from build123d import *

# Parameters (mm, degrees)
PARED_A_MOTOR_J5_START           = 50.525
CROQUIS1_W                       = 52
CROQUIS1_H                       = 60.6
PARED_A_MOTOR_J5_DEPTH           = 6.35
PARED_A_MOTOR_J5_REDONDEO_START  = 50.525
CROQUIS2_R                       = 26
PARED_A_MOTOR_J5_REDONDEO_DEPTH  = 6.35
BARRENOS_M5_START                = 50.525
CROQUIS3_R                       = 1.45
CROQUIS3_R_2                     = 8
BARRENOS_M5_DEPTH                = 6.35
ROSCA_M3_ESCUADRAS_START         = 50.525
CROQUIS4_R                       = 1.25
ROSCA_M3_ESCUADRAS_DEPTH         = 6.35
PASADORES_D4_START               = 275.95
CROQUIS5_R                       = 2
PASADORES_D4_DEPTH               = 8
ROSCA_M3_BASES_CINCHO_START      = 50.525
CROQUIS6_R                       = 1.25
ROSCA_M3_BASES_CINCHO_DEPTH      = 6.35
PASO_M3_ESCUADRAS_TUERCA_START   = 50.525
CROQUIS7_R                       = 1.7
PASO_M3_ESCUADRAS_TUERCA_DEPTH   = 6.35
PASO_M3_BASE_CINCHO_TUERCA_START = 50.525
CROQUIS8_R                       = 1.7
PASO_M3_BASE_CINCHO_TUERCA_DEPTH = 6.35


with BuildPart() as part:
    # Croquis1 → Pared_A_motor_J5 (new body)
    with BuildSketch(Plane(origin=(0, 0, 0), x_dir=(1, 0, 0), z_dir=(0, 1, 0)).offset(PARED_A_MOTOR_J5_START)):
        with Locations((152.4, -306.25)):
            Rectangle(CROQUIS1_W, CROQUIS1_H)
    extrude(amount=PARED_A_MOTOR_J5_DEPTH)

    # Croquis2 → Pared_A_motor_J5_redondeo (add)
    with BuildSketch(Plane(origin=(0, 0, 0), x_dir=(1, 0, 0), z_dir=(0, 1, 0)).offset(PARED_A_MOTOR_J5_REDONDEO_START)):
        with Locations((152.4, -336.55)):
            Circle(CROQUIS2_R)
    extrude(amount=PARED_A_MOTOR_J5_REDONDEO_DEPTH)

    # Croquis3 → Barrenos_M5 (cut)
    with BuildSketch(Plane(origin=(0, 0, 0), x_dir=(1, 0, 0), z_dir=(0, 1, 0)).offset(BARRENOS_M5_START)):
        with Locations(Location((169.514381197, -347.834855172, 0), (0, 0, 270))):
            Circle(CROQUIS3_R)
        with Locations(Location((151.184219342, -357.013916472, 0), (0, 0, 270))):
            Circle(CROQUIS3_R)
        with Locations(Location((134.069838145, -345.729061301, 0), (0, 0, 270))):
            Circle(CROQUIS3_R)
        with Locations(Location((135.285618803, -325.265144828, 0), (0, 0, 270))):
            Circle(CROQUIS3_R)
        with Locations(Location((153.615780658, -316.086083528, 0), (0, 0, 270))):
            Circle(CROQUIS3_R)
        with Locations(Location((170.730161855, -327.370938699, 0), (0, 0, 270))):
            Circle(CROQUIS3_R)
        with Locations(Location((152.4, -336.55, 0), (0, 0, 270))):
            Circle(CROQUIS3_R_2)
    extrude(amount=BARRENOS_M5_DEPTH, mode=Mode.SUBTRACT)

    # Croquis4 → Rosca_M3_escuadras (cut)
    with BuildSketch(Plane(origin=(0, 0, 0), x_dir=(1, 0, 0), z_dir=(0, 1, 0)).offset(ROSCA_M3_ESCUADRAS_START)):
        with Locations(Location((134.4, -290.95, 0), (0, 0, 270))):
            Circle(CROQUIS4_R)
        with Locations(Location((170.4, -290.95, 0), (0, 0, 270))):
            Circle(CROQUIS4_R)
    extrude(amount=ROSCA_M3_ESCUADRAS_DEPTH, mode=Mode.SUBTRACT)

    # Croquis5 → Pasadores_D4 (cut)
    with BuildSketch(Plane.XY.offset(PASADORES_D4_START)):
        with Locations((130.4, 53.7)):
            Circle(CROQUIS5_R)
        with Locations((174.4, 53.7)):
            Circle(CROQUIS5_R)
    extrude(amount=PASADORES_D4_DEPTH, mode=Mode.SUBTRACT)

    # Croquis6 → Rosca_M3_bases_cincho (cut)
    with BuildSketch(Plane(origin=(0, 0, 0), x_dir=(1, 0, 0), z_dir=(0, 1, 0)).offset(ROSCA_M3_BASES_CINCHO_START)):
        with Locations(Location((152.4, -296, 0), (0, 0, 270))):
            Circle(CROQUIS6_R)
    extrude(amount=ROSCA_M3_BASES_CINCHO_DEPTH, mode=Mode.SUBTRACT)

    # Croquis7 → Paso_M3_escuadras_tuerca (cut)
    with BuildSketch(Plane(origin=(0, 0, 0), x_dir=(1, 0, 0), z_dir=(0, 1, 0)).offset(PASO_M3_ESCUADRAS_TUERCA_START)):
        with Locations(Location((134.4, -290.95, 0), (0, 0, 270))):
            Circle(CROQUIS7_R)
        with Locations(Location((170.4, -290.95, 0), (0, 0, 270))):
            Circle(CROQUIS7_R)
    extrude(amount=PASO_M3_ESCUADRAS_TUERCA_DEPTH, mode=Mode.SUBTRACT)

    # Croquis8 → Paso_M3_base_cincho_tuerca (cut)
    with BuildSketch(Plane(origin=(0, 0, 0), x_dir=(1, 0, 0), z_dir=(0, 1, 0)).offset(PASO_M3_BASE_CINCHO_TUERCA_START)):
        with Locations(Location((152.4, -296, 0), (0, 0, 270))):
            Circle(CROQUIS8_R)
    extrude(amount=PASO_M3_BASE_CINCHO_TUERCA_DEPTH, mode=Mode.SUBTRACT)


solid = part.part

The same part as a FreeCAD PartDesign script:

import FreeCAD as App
import Part
import Sketcher

doc = App.newDocument("Part")
body = doc.addObject("PartDesign::Body", "Body")

sketch1 = doc.addObject("Sketcher::SketchObject", "Sketch")
body.addObject(sketch1)
sketch1.AttachmentSupport = (doc.XZ_Plane, [""])
sketch1.MapMode = "FlatFace"
sketch1.AttachmentOffset = App.Placement(App.Vector(0, 0, -50.525), App.Rotation())
sketch1.addGeometry(Part.LineSegment(App.Vector(126, 276, 0), App.Vector(126, 337, 0)), False)
sketch1.addGeometry(Part.LineSegment(App.Vector(126, 337, 0), App.Vector(178, 337, 0)), False)
sketch1.addGeometry(Part.LineSegment(App.Vector(178, 337, 0), App.Vector(178, 276, 0)), False)
sketch1.addGeometry(Part.LineSegment(App.Vector(178, 276, 0), App.Vector(126, 276, 0)), False)
sketch1.addConstraint(Sketcher.Constraint("Coincident", 0, 2, 1, 1))
sketch1.addConstraint(Sketcher.Constraint("Coincident", 1, 2, 2, 1))
sketch1.addConstraint(Sketcher.Constraint("Coincident", 2, 2, 3, 1))
sketch1.addConstraint(Sketcher.Constraint("Coincident", 3, 2, 0, 1))
sketch1.addConstraint(Sketcher.Constraint("Vertical", 0))
sketch1.addConstraint(Sketcher.Constraint("Horizontal", 1))
sketch1.addConstraint(Sketcher.Constraint("Vertical", 2))
sketch1.addConstraint(Sketcher.Constraint("Horizontal", 3))
sketch1.addConstraint(Sketcher.Constraint("DistanceX", 1, 1, 1, 2, 52.0))
sketch1.addConstraint(Sketcher.Constraint("DistanceY", 0, 1, 0, 2, 60.6))
sketch1.addConstraint(Sketcher.Constraint("DistanceX", -1, 1, 0, 2, 126.4))
sketch1.addConstraint(Sketcher.Constraint("DistanceY", -1, 1, 0, 2, 336.55))
pad1 = doc.addObject("PartDesign::Pad", "Pad")
body.addObject(pad1)
pad1.Profile = sketch1
pad1.Length = 6.35
pad1.Reversed = True

sketch2 = doc.addObject("Sketcher::SketchObject", "Sketch001")
body.addObject(sketch2)
sketch2.AttachmentSupport = (doc.XZ_Plane, [""])
sketch2.MapMode = "FlatFace"
sketch2.AttachmentOffset = App.Placement(App.Vector(0, 0, -50.525), App.Rotation())
sketch2.addGeometry(Part.Circle(App.Vector(152, 337, 0), App.Vector(0, 0, 1), 26), False)
sketch2.addConstraint(Sketcher.Constraint("Diameter", 0, 52.0))
sketch2.addConstraint(Sketcher.Constraint("DistanceX", -1, 1, 0, 3, 152.4))
sketch2.addConstraint(Sketcher.Constraint("DistanceY", -1, 1, 0, 3, 336.55))
pad2 = doc.addObject("PartDesign::Pad", "Pad001")
body.addObject(pad2)
pad2.Profile = sketch2
pad2.Length = 6.35
pad2.Reversed = True

sketch3 = doc.addObject("Sketcher::SketchObject", "Sketch002")
body.addObject(sketch3)
sketch3.AttachmentSupport = (doc.XZ_Plane, [""])
sketch3.MapMode = "FlatFace"
sketch3.AttachmentOffset = App.Placement(App.Vector(0, 0, -50.525), App.Rotation())
sketch3.addGeometry(Part.Circle(App.Vector(169.5, 347.8, 0), App.Vector(0, 0, 1), 1.4), False)
sketch3.addGeometry(Part.Circle(App.Vector(151.2, 357, 0), App.Vector(0, 0, 1), 1.4), False)
sketch3.addGeometry(Part.Circle(App.Vector(134.1, 345.7, 0), App.Vector(0, 0, 1), 1.4), False)
sketch3.addGeometry(Part.Circle(App.Vector(135.3, 325.3, 0), App.Vector(0, 0, 1), 1.4), False)
sketch3.addGeometry(Part.Circle(App.Vector(153.6, 316.1, 0), App.Vector(0, 0, 1), 1.4), False)
sketch3.addGeometry(Part.Circle(App.Vector(170.7, 327.4, 0), App.Vector(0, 0, 1), 1.4), False)
sketch3.addGeometry(Part.Circle(App.Vector(152.4, 336.6, 0), App.Vector(0, 0, 1), 8), False)
sketch3.addConstraint(Sketcher.Constraint("Equal", 0, 1))
sketch3.addConstraint(Sketcher.Constraint("Equal", 1, 2))
sketch3.addConstraint(Sketcher.Constraint("Equal", 2, 3))
sketch3.addConstraint(Sketcher.Constraint("Equal", 3, 4))
sketch3.addConstraint(Sketcher.Constraint("Equal", 4, 5))
sketch3.addConstraint(Sketcher.Constraint("Diameter", 6, 16.0))
sketch3.addConstraint(Sketcher.Constraint("Diameter", 0, 2.9))
sketch3.addConstraint(Sketcher.Constraint("DistanceX", -1, 1, 6, 3, 152.4))
sketch3.addConstraint(Sketcher.Constraint("DistanceY", -1, 1, 6, 3, 336.55))
sketch3.addConstraint(Sketcher.Constraint("DistanceX", 3, 3, 1, 3, 15.898601))
sketch3.addConstraint(Sketcher.Constraint("DistanceX", 4, 3, 0, 3, 15.898601))
sketch3.addConstraint(Sketcher.Constraint("DistanceX", -1, 1, 0, 3, 169.514381))
sketch3.addConstraint(Sketcher.Constraint("DistanceX", -1, 1, 1, 3, 151.184219))
sketch3.addConstraint(Sketcher.Constraint("DistanceX", -1, 1, 2, 3, 134.069838))
sketch3.addConstraint(Sketcher.Constraint("DistanceY", -1, 1, 2, 3, 345.729061))
sketch3.addConstraint(Sketcher.Constraint("DistanceX", -1, 1, 5, 3, 170.730162))
sketch3.addConstraint(Sketcher.Constraint("DistanceY", -1, 1, 5, 3, 327.370939))
sketch3.addConstraint(Sketcher.Constraint("DistanceY", 0, 3, 1, 3, 9.179061))
sketch3.addConstraint(Sketcher.Constraint("DistanceY", 3, 3, 1, 3, 31.748772))
sketch3.addConstraint(Sketcher.Constraint("DistanceY", 4, 3, 3, 3, 9.179061))
sketch3.addConstraint(Sketcher.Constraint("DistanceY", -1, 1, 0, 3, 347.834855))
pocket1 = doc.addObject("PartDesign::Pocket", "Pocket")
body.addObject(pocket1)
pocket1.Profile = sketch3
pocket1.Length = 6.35

sketch4 = doc.addObject("Sketcher::SketchObject", "Sketch003")
body.addObject(sketch4)
sketch4.AttachmentSupport = (doc.XZ_Plane, [""])
sketch4.MapMode = "FlatFace"
sketch4.AttachmentOffset = App.Placement(App.Vector(0, 0, -50.525), App.Rotation())
sketch4.addGeometry(Part.Circle(App.Vector(134.4, 290.9, 0), App.Vector(0, 0, 1), 1.2), False)
sketch4.addGeometry(Part.Circle(App.Vector(170.4, 290.9, 0), App.Vector(0, 0, 1), 1.2), False)
sketch4.addConstraint(Sketcher.Constraint("Equal", 0, 1))
sketch4.addConstraint(Sketcher.Constraint("Horizontal", 0, 3, 1, 3))
sketch4.addConstraint(Sketcher.Constraint("Diameter", 0, 2.5))
sketch4.addConstraint(Sketcher.Constraint("DistanceX", 0, 3, 1, 3, 36.0))
sketch4.addConstraint(Sketcher.Constraint("DistanceX", -1, 1, 0, 3, 134.4))
sketch4.addConstraint(Sketcher.Constraint("DistanceY", -1, 1, 0, 3, 290.95))
pocket2 = doc.addObject("PartDesign::Pocket", "Pocket001")
body.addObject(pocket2)
pocket2.Profile = sketch4
pocket2.Length = 6.35

sketch5 = doc.addObject("Sketcher::SketchObject", "Sketch004")
body.addObject(sketch5)
sketch5.AttachmentSupport = (doc.XY_Plane, [""])
sketch5.MapMode = "FlatFace"
sketch5.AttachmentOffset = App.Placement(App.Vector(0, 0, 275.95), App.Rotation())
sketch5.addGeometry(Part.Circle(App.Vector(130.4, 53.7, 0), App.Vector(0, 0, 1), 2), False)
sketch5.addGeometry(Part.Circle(App.Vector(174.4, 53.7, 0), App.Vector(0, 0, 1), 2), False)
sketch5.addConstraint(Sketcher.Constraint("Equal", 0, 1))
sketch5.addConstraint(Sketcher.Constraint("Horizontal", 0, 3, 1, 3))
sketch5.addConstraint(Sketcher.Constraint("Diameter", 0, 4.0))
sketch5.addConstraint(Sketcher.Constraint("DistanceX", 0, 3, 1, 3, 44.0))
sketch5.addConstraint(Sketcher.Constraint("DistanceX", -1, 1, 0, 3, 130.4))
sketch5.addConstraint(Sketcher.Constraint("DistanceY", -1, 1, 0, 3, 53.7))
pocket3 = doc.addObject("PartDesign::Pocket", "Pocket002")
body.addObject(pocket3)
pocket3.Profile = sketch5
pocket3.Length = 8
pocket3.Reversed = True

sketch6 = doc.addObject("Sketcher::SketchObject", "Sketch005")
body.addObject(sketch6)
sketch6.AttachmentSupport = (doc.XZ_Plane, [""])
sketch6.MapMode = "FlatFace"
sketch6.AttachmentOffset = App.Placement(App.Vector(0, 0, -50.525), App.Rotation())
sketch6.addGeometry(Part.Circle(App.Vector(152.4, 296, 0), App.Vector(0, 0, 1), 1.2), False)
sketch6.addConstraint(Sketcher.Constraint("Diameter", 0, 2.5))
sketch6.addConstraint(Sketcher.Constraint("DistanceY", -1, 1, 0, 3, 296.0))
sketch6.addConstraint(Sketcher.Constraint("DistanceX", -1, 1, 0, 3, 152.4))
pocket4 = doc.addObject("PartDesign::Pocket", "Pocket003")
body.addObject(pocket4)
pocket4.Profile = sketch6
pocket4.Length = 6.35

sketch7 = doc.addObject("Sketcher::SketchObject", "Sketch006")
body.addObject(sketch7)
sketch7.AttachmentSupport = (doc.XZ_Plane, [""])
sketch7.MapMode = "FlatFace"
sketch7.AttachmentOffset = App.Placement(App.Vector(0, 0, -50.525), App.Rotation())
sketch7.addGeometry(Part.Circle(App.Vector(134.4, 290.9, 0), App.Vector(0, 0, 1), 1.7), False)
sketch7.addGeometry(Part.Circle(App.Vector(170.4, 290.9, 0), App.Vector(0, 0, 1), 1.7), False)
sketch7.addConstraint(Sketcher.Constraint("Equal", 0, 1))
sketch7.addConstraint(Sketcher.Constraint("Horizontal", 0, 3, 1, 3))
sketch7.addConstraint(Sketcher.Constraint("Diameter", 0, 3.4))
sketch7.addConstraint(Sketcher.Constraint("DistanceX", 0, 3, 1, 3, 36.0))
sketch7.addConstraint(Sketcher.Constraint("DistanceX", -1, 1, 0, 3, 134.4))
sketch7.addConstraint(Sketcher.Constraint("DistanceY", -1, 1, 0, 3, 290.95))
pocket5 = doc.addObject("PartDesign::Pocket", "Pocket004")
body.addObject(pocket5)
pocket5.Profile = sketch7
pocket5.Length = 6.35

sketch8 = doc.addObject("Sketcher::SketchObject", "Sketch007")
body.addObject(sketch8)
sketch8.AttachmentSupport = (doc.XZ_Plane, [""])
sketch8.MapMode = "FlatFace"
sketch8.AttachmentOffset = App.Placement(App.Vector(0, 0, -50.525), App.Rotation())
sketch8.addGeometry(Part.Circle(App.Vector(152.4, 296, 0), App.Vector(0, 0, 1), 1.7), False)
sketch8.addConstraint(Sketcher.Constraint("Diameter", 0, 3.4))
sketch8.addConstraint(Sketcher.Constraint("DistanceY", -1, 1, 0, 3, 296.0))
sketch8.addConstraint(Sketcher.Constraint("DistanceX", -1, 1, 0, 3, 152.4))
pocket6 = doc.addObject("PartDesign::Pocket", "Pocket005")
body.addObject(pocket6)
pocket6.Profile = sketch8
pocket6.Length = 6.35

doc.recompute()
